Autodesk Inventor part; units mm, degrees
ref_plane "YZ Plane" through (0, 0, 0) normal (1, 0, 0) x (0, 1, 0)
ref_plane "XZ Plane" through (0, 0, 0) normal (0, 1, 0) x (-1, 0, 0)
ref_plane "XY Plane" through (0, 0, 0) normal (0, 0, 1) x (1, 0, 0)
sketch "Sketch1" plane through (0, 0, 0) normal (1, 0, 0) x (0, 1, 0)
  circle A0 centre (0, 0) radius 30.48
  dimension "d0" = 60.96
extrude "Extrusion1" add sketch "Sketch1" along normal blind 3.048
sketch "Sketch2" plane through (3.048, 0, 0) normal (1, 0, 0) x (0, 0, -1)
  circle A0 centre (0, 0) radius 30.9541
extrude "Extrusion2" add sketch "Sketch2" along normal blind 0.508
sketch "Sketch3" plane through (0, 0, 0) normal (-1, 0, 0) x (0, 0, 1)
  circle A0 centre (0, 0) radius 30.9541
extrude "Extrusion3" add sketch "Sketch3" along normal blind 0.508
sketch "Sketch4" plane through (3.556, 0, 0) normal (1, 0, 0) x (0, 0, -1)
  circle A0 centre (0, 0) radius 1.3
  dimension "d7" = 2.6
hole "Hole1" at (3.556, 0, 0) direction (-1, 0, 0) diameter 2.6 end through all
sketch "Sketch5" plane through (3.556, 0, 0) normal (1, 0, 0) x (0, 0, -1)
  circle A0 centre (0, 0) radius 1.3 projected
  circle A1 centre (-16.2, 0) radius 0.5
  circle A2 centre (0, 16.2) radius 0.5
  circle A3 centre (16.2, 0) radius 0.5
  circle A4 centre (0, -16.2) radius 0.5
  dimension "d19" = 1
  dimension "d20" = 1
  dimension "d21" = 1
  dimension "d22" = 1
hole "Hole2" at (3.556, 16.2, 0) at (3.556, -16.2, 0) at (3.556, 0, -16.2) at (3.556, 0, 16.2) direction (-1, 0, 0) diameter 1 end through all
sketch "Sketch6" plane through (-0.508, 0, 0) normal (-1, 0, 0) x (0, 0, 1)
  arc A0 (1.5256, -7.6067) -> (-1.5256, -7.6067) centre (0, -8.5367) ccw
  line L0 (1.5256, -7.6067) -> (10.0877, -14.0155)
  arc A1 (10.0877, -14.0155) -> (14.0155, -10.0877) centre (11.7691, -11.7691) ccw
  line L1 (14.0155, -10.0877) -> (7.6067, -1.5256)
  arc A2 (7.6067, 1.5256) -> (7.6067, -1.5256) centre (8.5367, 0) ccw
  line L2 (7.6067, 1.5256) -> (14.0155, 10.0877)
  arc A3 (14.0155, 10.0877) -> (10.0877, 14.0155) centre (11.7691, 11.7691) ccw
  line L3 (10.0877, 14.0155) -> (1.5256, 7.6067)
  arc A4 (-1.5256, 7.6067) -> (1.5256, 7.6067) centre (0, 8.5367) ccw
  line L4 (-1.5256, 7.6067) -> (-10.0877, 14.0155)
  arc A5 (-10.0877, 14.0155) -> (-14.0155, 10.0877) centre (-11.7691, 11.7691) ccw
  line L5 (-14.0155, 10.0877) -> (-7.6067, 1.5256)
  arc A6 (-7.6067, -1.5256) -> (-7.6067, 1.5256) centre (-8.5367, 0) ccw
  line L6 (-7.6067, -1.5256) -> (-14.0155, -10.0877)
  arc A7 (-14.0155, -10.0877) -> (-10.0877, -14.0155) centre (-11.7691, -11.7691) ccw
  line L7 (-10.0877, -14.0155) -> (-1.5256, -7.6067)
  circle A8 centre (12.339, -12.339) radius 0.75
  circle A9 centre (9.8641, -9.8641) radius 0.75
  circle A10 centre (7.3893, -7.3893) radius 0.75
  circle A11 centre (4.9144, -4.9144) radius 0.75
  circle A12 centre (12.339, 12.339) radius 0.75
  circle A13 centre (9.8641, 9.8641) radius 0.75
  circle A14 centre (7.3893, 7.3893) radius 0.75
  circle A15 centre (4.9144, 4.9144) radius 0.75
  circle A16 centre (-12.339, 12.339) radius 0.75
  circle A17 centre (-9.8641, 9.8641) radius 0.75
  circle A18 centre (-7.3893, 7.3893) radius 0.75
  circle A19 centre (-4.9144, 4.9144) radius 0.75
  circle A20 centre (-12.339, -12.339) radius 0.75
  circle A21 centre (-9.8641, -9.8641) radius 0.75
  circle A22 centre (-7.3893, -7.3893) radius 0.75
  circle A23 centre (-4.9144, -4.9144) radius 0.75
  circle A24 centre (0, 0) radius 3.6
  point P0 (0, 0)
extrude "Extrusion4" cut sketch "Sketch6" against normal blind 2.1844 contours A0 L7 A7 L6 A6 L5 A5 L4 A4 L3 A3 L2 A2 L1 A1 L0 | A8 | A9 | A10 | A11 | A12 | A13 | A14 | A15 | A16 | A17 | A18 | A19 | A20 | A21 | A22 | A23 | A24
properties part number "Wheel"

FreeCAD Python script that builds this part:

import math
import FreeCAD as App
import Part
import Sketcher
from FreeCAD import Vector
Q = App.Units.Quantity

doc = App.newDocument("Part")
params = doc.addObject("Spreadsheet::Sheet", "Params")
for row, (alias, value) in enumerate([
    ("sketch1_diameter", "2.4 in"),
    ("pad1_length", "0.12 in"),
    ("pad2_length", "0.02 in"),
    ("pad3_length", "0.02 in"),
    ("hole_diameter", "2.6 mm"),
    ("hole2_diameter", "1 mm"),
    ("pocket1_length", "0.086 in"),
], start=1):
    params.set(f"A{row}", alias)
    params.set(f"B{row}", "=" + value)
    params.setAlias(f"B{row}", alias)

body = doc.addObject("PartDesign::Body", "Body")

# Sketch on YZ plane
sketch1 = body.newObject("Sketcher::SketchObject", "Sketch")
sketch1.AttachmentSupport = (doc.getObject("YZ_Plane"), [""])
sketch1.MapMode = "FlatFace"
sketch1.addGeometry(Part.Circle(Vector(0, 0, 0), Vector(0, 0, 1), 30.48), False)
sketch1.addConstraint(Sketcher.Constraint("Coincident", 0, 3, -1, 1))
sketch1.addConstraint(Sketcher.Constraint("Diameter", 0, Q("2.4 in")))
sketch1.setExpression("Constraints[1]", "Params.sketch1_diameter")
pad1 = body.newObject("PartDesign::Pad", "Pad")
pad1.Profile = sketch1
pad1.setExpression("Length", "Params.pad1_length")

# Sketch on YZ plane
sketch2 = body.newObject("Sketcher::SketchObject", "Sketch001")
sketch2.AttachmentSupport = (doc.getObject("YZ_Plane"), [""])
sketch2.MapMode = "FlatFace"
sketch2.AttachmentOffset = App.Placement(Vector(0, 0, 0.12 * 25.4), App.Rotation())
sketch2.addGeometry(Part.Circle(Vector(0, 0, 0), Vector(0, 0, 1), 30.9541), False)
sketch2.addConstraint(Sketcher.Constraint("Coincident", 0, 3, -1, 1))
sketch2.addConstraint(Sketcher.Constraint("Diameter", 0, 61.9082))
pad2 = body.newObject("PartDesign::Pad", "Pad001")
pad2.Profile = sketch2
pad2.setExpression("Length", "Params.pad2_length")

# Sketch on YZ plane
sketch3 = body.newObject("Sketcher::SketchObject", "Sketch002")
sketch3.AttachmentSupport = (doc.getObject("YZ_Plane"), [""])
sketch3.MapMode = "FlatFace"
sketch3.addGeometry(Part.Circle(Vector(0, 0, 0), Vector(0, 0, 1), 30.9541), False)
sketch3.addConstraint(Sketcher.Constraint("Coincident", 0, 3, -1, 1))
sketch3.addConstraint(Sketcher.Constraint("Diameter", 0, 61.9082))
pad3 = body.newObject("PartDesign::Pad", "Pad002")
pad3.Profile = sketch3
pad3.setExpression("Length", "Params.pad3_length")
pad3.Reversed = True

# Sketch on YZ plane
sketch4 = body.newObject("Sketcher::SketchObject", "Sketch003")
sketch4.AttachmentSupport = (doc.getObject("YZ_Plane"), [""])
sketch4.MapMode = "FlatFace"
sketch4.AttachmentOffset = App.Placement(Vector(0, 0, 0.14 * 25.4), App.Rotation())
sketch4.addGeometry(Part.Circle(Vector(0, 0, 0), Vector(0, 0, 1), 1.3), False)
sketch4.addConstraint(Sketcher.Constraint("Coincident", 0, 3, -1, 1))
sketch4.addConstraint(Sketcher.Constraint("Diameter", 0, 2.6))
doc.recompute()
hole = body.newObject("PartDesign::Hole", "Hole")
hole.Profile = sketch4
hole.ThreadType = "None"
hole.setExpression("Diameter", "Params.hole_diameter")
hole.DepthType = "ThroughAll"

# Sketch on YZ plane
sketch5 = body.newObject("Sketcher::SketchObject", "Sketch004")
sketch5.AttachmentSupport = (doc.getObject("YZ_Plane"), [""])
sketch5.MapMode = "FlatFace"
sketch5.AttachmentOffset = App.Placement(Vector(0, 0, 0.14 * 25.4), App.Rotation())
sketch5.addGeometry(Part.Circle(Vector(16.2, 0, 0), Vector(0, 0, 1), 0.5), False)
sketch5.addGeometry(Part.Circle(Vector(-16.2, 0, 0), Vector(0, 0, 1), 0.5), False)
sketch5.addGeometry(Part.Circle(Vector(0, -16.2, 0), Vector(0, 0, 1), 0.5), False)
sketch5.addGeometry(Part.Circle(Vector(0, 16.2, 0), Vector(0, 0, 1), 0.5), False)
sketch5.addConstraint(Sketcher.Constraint("Equal", 0, 1))
sketch5.addConstraint(Sketcher.Constraint("Equal", 1, 2))
sketch5.addConstraint(Sketcher.Constraint("Equal", 2, 3))
sketch5.addConstraint(Sketcher.Constraint("Symmetric", 0, 3, 1, 3, -1, 1))
sketch5.addConstraint(Sketcher.Constraint("Symmetric", 2, 3, 3, 3, -1, 1))
sketch5.addConstraint(Sketcher.Constraint("PointOnObject", 0, 3, -1))
sketch5.addConstraint(Sketcher.Constraint("PointOnObject", 2, 3, -2))
sketch5.addConstraint(Sketcher.Constraint("Diameter", 0, 1.0))
sketch5.addConstraint(Sketcher.Constraint("DistanceX", -1, 1, 0, 3, Q("0.6378 in")))
sketch5.addConstraint(Sketcher.Constraint("DistanceY", 2, 3, -1, 1, Q("0.6378 in")))
doc.recompute()
hole2 = body.newObject("PartDesign::Hole", "Hole001")
hole2.Profile = sketch5
hole2.ThreadType = "None"
hole2.setExpression("Diameter", "Params.hole2_diameter")
hole2.DepthType = "ThroughAll"

# Sketch on YZ plane
sketch6 = body.newObject("Sketcher::SketchObject", "Sketch005")
sketch6.AttachmentSupport = (doc.getObject("YZ_Plane"), [""])
sketch6.MapMode = "FlatFace"
sketch6.AttachmentOffset = App.Placement(Vector(0, 0, -0.02 * 25.4), App.Rotation())
sketch6.addGeometry(Part.ArcOfCircle(Part.Circle(Vector(-8.5367, 0, 0), Vector(0, 0, 1), 1.786716), math.radians(-58.633673), math.radians(58.633673)), False)
sketch6.addGeometry(Part.LineSegment(Vector(-7.6067, 1.5256, 0), Vector(-14.0155, 10.0877, 0)), False)
sketch6.addGeometry(Part.ArcOfCircle(Part.Circle(Vector(-11.7691, 11.7691, 0), Vector(0, 0, 1), 2.805961), math.radians(53.185643), math.radians(216.814357)), False)
sketch6.addGeometry(Part.LineSegment(Vector(-10.0877, 14.0155, 0), Vector(-1.5256, 7.6067, 0)), False)
sketch6.addGeometry(Part.ArcOfCircle(Part.Circle(Vector(0, 8.5367, 0), Vector(0, 0, 1), 1.786716), math.radians(-148.633673), math.radians(-31.366327)), False)
sketch6.addGeometry(Part.LineSegment(Vector(1.5256, 7.6067, 0), Vector(10.0877, 14.0155, 0)), False)
sketch6.addGeometry(Part.ArcOfCircle(Part.Circle(Vector(11.7691, 11.7691, 0), Vector(0, 0, 1), 2.805961), math.radians(-36.814357), math.radians(126.814357)), False)
sketch6.addGeometry(Part.LineSegment(Vector(14.0155, 10.0877, 0), Vector(7.6067, 1.5256, 0)), False)
sketch6.addGeometry(Part.ArcOfCircle(Part.Circle(Vector(8.5367, 0, 0), Vector(0, 0, 1), 1.786716), math.radians(121.366327), math.radians(238.633673)), False)
sketch6.addGeometry(Part.LineSegment(Vector(7.6067, -1.5256, 0), Vector(14.0155, -10.0877, 0)), False)
sketch6.addGeometry(Part.ArcOfCircle(Part.Circle(Vector(11.7691, -11.7691, 0), Vector(0, 0, 1), 2.805961), math.radians(-126.814357), math.radians(36.814357)), False)
sketch6.addGeometry(Part.LineSegment(Vector(10.0877, -14.0155, 0), Vector(1.5256, -7.6067, 0)), False)
sketch6.addGeometry(Part.ArcOfCircle(Part.Circle(Vector(0, -8.5367, 0), Vector(0, 0, 1), 1.786716), math.radians(31.366327), math.radians(148.633673)), False)
sketch6.addGeometry(Part.LineSegment(Vector(-1.5256, -7.6067, 0), Vector(-10.0877, -14.0155, 0)), False)
sketch6.addGeometry(Part.ArcOfCircle(Part.Circle(Vector(-11.7691, -11.7691, 0), Vector(0, 0, 1), 2.805961), math.radians(143.185643), math.radians(306.814357)), False)
sketch6.addGeometry(Part.LineSegment(Vector(-14.0155, -10.0877, 0), Vector(-7.6067, -1.5256, 0)), False)
sketch6.addConstraint(Sketcher.Constraint("Coincident", 0, 2, 1, 1))
sketch6.addConstraint(Sketcher.Constraint("Coincident", 1, 2, 2, 2))
sketch6.addConstraint(Sketcher.Constraint("Coincident", 2, 1, 3, 1))
sketch6.addConstraint(Sketcher.Constraint("Coincident", 3, 2, 4, 1))
sketch6.addConstraint(Sketcher.Constraint("Coincident", 4, 2, 5, 1))
sketch6.addConstraint(Sketcher.Constraint("Coincident", 5, 2, 6, 2))
sketch6.addConstraint(Sketcher.Constraint("Coincident", 6, 1, 7, 1))
sketch6.addConstraint(Sketcher.Constraint("Coincident", 7, 2, 8, 1))
sketch6.addConstraint(Sketcher.Constraint("Coincident", 8, 2, 9, 1))
sketch6.addConstraint(Sketcher.Constraint("Coincident", 9, 2, 10, 2))
sketch6.addConstraint(Sketcher.Constraint("Coincident", 10, 1, 11, 1))
sketch6.addConstraint(Sketcher.Constraint("Coincident", 11, 2, 12, 1))
sketch6.addConstraint(Sketcher.Constraint("Coincident", 12, 2, 13, 1))
sketch6.addConstraint(Sketcher.Constraint("Coincident", 13, 2, 14, 2))
sketch6.addConstraint(Sketcher.Constraint("Coincident", 14, 1, 15, 1))
sketch6.addConstraint(Sketcher.Constraint("Coincident", 15, 2, 0, 1))
sketch6.addConstraint(Sketcher.Constraint("PointOnObject", 0, 3, -1))
sketch6.addConstraint(Sketcher.Constraint("PointOnObject", 4, 3, -2))
sketch6.addConstraint(Sketcher.Constraint("PointOnObject", 8, 3, -1))
sketch6.addConstraint(Sketcher.Constraint("PointOnObject", 12, 3, -2))
sketch6.addConstraint(Sketcher.Constraint("Radius", 0, 1.7867))
sketch6.addConstraint(Sketcher.Constraint("Radius", 2, 2.806))
sketch6.addConstraint(Sketcher.Constraint("Radius", 4, 1.7867))
sketch6.addConstraint(Sketcher.Constraint("Radius", 6, 2.806))
sketch6.addConstraint(Sketcher.Constraint("Radius", 8, 1.7867))
sketch6.addConstraint(Sketcher.Constraint("Radius", 10, 2.806))
sketch6.addConstraint(Sketcher.Constraint("Radius", 12, 1.7867))
sketch6.addConstraint(Sketcher.Constraint("Radius", 14, 2.806))
sketch6.addConstraint(Sketcher.Constraint("DistanceX", 0, 3, -1, 1, Q("0.3361 in")))
sketch6.addConstraint(Sketcher.Constraint("DistanceY", -1, 1, 4, 3, Q("0.3361 in")))
sketch6.addConstraint(Sketcher.Constraint("DistanceX", -1, 1, 8, 3, Q("0.3361 in")))
sketch6.addConstraint(Sketcher.Constraint("DistanceY", 12, 3, -1, 1, Q("0.3361 in")))
sketch6.addConstraint(Sketcher.Constraint("DistanceX", 1, 2, -1, 1, Q("0.5518 in")))
sketch6.addConstraint(Sketcher.Constraint("DistanceY", -1, 1, 2, 1, Q("0.5518 in")))
sketch6.addConstraint(Sketcher.Constraint("DistanceY", -1, 1, 5, 2, Q("0.5518 in")))
sketch6.addConstraint(Sketcher.Constraint("DistanceX", -1, 1, 6, 1, Q("0.5518 in")))
sketch6.addConstraint(Sketcher.Constraint("DistanceX", -1, 1, 9, 2, Q("0.5518 in")))
sketch6.addConstraint(Sketcher.Constraint("DistanceY", 10, 1, -1, 1, Q("0.5518 in")))
sketch6.addConstraint(Sketcher.Constraint("DistanceY", 13, 2, -1, 1, Q("0.5518 in")))
sketch6.addConstraint(Sketcher.Constraint("DistanceX", 14, 1, -1, 1, Q("0.5518 in")))
sketch6.addConstraint(Sketcher.Constraint("DistanceX", 2, 3, 6, 3, Q("0.9267 in")))
sketch6.addConstraint(Sketcher.Constraint("DistanceY", 10, 3, 6, 3, Q("0.9267 in")))
sketch6.addConstraint(Sketcher.Constraint("DistanceX", 2, 3, 10, 3, Q("0.9267 in")))
sketch6.addConstraint(Sketcher.Constraint("DistanceY", 10, 3, 2, 3, Q("0.9267 in")))
sketch6.addConstraint(Sketcher.Constraint("DistanceY", 14, 3, 2, 3, Q("0.9267 in")))
sketch6.addConstraint(Sketcher.Constraint("DistanceY", 1, 2, 2, 3, Q("0.0662 in")))
sketch6.addConstraint(Sketcher.Constraint("DistanceY", 0, 2, 1, 2, Q("0.3371 in")))
sketch6.addConstraint(Sketcher.Constraint("DistanceX", 2, 3, 2, 1, Q("0.0662 in")))
sketch6.addConstraint(Sketcher.Constraint("DistanceX", 2, 1, 3, 2, Q("0.3371 in")))
sketch6.addConstraint(Sketcher.Constraint("DistanceX", 4, 2, 5, 2, Q("0.3371 in")))
sketch6.addConstraint(Sketcher.Constraint("DistanceY", 7, 2, 6, 1, Q("0.3371 in")))
sketch6.addConstraint(Sketcher.Constraint("DistanceY", 9, 2, 8, 2, Q("0.3371 in")))
sketch6.addConstraint(Sketcher.Constraint("DistanceX", 11, 2, 10, 1, Q("0.3371 in")))
sketch6.addConstraint(Sketcher.Constraint("DistanceX", 13, 2, 12, 2, Q("0.3371 in")))
sketch6.addConstraint(Sketcher.Constraint("DistanceY", 14, 3, 14, 1, Q("0.0662 in")))
sketch6.addConstraint(Sketcher.Constraint("DistanceY", 14, 1, 15, 2, Q("0.3371 in")))
pocket1 = body.newObject("PartDesign::Pocket", "Pocket")
pocket1.Profile = sketch6
pocket1.setExpression("Length", "Params.pocket1_length")
pocket1.Reversed = True

doc.recompute()
